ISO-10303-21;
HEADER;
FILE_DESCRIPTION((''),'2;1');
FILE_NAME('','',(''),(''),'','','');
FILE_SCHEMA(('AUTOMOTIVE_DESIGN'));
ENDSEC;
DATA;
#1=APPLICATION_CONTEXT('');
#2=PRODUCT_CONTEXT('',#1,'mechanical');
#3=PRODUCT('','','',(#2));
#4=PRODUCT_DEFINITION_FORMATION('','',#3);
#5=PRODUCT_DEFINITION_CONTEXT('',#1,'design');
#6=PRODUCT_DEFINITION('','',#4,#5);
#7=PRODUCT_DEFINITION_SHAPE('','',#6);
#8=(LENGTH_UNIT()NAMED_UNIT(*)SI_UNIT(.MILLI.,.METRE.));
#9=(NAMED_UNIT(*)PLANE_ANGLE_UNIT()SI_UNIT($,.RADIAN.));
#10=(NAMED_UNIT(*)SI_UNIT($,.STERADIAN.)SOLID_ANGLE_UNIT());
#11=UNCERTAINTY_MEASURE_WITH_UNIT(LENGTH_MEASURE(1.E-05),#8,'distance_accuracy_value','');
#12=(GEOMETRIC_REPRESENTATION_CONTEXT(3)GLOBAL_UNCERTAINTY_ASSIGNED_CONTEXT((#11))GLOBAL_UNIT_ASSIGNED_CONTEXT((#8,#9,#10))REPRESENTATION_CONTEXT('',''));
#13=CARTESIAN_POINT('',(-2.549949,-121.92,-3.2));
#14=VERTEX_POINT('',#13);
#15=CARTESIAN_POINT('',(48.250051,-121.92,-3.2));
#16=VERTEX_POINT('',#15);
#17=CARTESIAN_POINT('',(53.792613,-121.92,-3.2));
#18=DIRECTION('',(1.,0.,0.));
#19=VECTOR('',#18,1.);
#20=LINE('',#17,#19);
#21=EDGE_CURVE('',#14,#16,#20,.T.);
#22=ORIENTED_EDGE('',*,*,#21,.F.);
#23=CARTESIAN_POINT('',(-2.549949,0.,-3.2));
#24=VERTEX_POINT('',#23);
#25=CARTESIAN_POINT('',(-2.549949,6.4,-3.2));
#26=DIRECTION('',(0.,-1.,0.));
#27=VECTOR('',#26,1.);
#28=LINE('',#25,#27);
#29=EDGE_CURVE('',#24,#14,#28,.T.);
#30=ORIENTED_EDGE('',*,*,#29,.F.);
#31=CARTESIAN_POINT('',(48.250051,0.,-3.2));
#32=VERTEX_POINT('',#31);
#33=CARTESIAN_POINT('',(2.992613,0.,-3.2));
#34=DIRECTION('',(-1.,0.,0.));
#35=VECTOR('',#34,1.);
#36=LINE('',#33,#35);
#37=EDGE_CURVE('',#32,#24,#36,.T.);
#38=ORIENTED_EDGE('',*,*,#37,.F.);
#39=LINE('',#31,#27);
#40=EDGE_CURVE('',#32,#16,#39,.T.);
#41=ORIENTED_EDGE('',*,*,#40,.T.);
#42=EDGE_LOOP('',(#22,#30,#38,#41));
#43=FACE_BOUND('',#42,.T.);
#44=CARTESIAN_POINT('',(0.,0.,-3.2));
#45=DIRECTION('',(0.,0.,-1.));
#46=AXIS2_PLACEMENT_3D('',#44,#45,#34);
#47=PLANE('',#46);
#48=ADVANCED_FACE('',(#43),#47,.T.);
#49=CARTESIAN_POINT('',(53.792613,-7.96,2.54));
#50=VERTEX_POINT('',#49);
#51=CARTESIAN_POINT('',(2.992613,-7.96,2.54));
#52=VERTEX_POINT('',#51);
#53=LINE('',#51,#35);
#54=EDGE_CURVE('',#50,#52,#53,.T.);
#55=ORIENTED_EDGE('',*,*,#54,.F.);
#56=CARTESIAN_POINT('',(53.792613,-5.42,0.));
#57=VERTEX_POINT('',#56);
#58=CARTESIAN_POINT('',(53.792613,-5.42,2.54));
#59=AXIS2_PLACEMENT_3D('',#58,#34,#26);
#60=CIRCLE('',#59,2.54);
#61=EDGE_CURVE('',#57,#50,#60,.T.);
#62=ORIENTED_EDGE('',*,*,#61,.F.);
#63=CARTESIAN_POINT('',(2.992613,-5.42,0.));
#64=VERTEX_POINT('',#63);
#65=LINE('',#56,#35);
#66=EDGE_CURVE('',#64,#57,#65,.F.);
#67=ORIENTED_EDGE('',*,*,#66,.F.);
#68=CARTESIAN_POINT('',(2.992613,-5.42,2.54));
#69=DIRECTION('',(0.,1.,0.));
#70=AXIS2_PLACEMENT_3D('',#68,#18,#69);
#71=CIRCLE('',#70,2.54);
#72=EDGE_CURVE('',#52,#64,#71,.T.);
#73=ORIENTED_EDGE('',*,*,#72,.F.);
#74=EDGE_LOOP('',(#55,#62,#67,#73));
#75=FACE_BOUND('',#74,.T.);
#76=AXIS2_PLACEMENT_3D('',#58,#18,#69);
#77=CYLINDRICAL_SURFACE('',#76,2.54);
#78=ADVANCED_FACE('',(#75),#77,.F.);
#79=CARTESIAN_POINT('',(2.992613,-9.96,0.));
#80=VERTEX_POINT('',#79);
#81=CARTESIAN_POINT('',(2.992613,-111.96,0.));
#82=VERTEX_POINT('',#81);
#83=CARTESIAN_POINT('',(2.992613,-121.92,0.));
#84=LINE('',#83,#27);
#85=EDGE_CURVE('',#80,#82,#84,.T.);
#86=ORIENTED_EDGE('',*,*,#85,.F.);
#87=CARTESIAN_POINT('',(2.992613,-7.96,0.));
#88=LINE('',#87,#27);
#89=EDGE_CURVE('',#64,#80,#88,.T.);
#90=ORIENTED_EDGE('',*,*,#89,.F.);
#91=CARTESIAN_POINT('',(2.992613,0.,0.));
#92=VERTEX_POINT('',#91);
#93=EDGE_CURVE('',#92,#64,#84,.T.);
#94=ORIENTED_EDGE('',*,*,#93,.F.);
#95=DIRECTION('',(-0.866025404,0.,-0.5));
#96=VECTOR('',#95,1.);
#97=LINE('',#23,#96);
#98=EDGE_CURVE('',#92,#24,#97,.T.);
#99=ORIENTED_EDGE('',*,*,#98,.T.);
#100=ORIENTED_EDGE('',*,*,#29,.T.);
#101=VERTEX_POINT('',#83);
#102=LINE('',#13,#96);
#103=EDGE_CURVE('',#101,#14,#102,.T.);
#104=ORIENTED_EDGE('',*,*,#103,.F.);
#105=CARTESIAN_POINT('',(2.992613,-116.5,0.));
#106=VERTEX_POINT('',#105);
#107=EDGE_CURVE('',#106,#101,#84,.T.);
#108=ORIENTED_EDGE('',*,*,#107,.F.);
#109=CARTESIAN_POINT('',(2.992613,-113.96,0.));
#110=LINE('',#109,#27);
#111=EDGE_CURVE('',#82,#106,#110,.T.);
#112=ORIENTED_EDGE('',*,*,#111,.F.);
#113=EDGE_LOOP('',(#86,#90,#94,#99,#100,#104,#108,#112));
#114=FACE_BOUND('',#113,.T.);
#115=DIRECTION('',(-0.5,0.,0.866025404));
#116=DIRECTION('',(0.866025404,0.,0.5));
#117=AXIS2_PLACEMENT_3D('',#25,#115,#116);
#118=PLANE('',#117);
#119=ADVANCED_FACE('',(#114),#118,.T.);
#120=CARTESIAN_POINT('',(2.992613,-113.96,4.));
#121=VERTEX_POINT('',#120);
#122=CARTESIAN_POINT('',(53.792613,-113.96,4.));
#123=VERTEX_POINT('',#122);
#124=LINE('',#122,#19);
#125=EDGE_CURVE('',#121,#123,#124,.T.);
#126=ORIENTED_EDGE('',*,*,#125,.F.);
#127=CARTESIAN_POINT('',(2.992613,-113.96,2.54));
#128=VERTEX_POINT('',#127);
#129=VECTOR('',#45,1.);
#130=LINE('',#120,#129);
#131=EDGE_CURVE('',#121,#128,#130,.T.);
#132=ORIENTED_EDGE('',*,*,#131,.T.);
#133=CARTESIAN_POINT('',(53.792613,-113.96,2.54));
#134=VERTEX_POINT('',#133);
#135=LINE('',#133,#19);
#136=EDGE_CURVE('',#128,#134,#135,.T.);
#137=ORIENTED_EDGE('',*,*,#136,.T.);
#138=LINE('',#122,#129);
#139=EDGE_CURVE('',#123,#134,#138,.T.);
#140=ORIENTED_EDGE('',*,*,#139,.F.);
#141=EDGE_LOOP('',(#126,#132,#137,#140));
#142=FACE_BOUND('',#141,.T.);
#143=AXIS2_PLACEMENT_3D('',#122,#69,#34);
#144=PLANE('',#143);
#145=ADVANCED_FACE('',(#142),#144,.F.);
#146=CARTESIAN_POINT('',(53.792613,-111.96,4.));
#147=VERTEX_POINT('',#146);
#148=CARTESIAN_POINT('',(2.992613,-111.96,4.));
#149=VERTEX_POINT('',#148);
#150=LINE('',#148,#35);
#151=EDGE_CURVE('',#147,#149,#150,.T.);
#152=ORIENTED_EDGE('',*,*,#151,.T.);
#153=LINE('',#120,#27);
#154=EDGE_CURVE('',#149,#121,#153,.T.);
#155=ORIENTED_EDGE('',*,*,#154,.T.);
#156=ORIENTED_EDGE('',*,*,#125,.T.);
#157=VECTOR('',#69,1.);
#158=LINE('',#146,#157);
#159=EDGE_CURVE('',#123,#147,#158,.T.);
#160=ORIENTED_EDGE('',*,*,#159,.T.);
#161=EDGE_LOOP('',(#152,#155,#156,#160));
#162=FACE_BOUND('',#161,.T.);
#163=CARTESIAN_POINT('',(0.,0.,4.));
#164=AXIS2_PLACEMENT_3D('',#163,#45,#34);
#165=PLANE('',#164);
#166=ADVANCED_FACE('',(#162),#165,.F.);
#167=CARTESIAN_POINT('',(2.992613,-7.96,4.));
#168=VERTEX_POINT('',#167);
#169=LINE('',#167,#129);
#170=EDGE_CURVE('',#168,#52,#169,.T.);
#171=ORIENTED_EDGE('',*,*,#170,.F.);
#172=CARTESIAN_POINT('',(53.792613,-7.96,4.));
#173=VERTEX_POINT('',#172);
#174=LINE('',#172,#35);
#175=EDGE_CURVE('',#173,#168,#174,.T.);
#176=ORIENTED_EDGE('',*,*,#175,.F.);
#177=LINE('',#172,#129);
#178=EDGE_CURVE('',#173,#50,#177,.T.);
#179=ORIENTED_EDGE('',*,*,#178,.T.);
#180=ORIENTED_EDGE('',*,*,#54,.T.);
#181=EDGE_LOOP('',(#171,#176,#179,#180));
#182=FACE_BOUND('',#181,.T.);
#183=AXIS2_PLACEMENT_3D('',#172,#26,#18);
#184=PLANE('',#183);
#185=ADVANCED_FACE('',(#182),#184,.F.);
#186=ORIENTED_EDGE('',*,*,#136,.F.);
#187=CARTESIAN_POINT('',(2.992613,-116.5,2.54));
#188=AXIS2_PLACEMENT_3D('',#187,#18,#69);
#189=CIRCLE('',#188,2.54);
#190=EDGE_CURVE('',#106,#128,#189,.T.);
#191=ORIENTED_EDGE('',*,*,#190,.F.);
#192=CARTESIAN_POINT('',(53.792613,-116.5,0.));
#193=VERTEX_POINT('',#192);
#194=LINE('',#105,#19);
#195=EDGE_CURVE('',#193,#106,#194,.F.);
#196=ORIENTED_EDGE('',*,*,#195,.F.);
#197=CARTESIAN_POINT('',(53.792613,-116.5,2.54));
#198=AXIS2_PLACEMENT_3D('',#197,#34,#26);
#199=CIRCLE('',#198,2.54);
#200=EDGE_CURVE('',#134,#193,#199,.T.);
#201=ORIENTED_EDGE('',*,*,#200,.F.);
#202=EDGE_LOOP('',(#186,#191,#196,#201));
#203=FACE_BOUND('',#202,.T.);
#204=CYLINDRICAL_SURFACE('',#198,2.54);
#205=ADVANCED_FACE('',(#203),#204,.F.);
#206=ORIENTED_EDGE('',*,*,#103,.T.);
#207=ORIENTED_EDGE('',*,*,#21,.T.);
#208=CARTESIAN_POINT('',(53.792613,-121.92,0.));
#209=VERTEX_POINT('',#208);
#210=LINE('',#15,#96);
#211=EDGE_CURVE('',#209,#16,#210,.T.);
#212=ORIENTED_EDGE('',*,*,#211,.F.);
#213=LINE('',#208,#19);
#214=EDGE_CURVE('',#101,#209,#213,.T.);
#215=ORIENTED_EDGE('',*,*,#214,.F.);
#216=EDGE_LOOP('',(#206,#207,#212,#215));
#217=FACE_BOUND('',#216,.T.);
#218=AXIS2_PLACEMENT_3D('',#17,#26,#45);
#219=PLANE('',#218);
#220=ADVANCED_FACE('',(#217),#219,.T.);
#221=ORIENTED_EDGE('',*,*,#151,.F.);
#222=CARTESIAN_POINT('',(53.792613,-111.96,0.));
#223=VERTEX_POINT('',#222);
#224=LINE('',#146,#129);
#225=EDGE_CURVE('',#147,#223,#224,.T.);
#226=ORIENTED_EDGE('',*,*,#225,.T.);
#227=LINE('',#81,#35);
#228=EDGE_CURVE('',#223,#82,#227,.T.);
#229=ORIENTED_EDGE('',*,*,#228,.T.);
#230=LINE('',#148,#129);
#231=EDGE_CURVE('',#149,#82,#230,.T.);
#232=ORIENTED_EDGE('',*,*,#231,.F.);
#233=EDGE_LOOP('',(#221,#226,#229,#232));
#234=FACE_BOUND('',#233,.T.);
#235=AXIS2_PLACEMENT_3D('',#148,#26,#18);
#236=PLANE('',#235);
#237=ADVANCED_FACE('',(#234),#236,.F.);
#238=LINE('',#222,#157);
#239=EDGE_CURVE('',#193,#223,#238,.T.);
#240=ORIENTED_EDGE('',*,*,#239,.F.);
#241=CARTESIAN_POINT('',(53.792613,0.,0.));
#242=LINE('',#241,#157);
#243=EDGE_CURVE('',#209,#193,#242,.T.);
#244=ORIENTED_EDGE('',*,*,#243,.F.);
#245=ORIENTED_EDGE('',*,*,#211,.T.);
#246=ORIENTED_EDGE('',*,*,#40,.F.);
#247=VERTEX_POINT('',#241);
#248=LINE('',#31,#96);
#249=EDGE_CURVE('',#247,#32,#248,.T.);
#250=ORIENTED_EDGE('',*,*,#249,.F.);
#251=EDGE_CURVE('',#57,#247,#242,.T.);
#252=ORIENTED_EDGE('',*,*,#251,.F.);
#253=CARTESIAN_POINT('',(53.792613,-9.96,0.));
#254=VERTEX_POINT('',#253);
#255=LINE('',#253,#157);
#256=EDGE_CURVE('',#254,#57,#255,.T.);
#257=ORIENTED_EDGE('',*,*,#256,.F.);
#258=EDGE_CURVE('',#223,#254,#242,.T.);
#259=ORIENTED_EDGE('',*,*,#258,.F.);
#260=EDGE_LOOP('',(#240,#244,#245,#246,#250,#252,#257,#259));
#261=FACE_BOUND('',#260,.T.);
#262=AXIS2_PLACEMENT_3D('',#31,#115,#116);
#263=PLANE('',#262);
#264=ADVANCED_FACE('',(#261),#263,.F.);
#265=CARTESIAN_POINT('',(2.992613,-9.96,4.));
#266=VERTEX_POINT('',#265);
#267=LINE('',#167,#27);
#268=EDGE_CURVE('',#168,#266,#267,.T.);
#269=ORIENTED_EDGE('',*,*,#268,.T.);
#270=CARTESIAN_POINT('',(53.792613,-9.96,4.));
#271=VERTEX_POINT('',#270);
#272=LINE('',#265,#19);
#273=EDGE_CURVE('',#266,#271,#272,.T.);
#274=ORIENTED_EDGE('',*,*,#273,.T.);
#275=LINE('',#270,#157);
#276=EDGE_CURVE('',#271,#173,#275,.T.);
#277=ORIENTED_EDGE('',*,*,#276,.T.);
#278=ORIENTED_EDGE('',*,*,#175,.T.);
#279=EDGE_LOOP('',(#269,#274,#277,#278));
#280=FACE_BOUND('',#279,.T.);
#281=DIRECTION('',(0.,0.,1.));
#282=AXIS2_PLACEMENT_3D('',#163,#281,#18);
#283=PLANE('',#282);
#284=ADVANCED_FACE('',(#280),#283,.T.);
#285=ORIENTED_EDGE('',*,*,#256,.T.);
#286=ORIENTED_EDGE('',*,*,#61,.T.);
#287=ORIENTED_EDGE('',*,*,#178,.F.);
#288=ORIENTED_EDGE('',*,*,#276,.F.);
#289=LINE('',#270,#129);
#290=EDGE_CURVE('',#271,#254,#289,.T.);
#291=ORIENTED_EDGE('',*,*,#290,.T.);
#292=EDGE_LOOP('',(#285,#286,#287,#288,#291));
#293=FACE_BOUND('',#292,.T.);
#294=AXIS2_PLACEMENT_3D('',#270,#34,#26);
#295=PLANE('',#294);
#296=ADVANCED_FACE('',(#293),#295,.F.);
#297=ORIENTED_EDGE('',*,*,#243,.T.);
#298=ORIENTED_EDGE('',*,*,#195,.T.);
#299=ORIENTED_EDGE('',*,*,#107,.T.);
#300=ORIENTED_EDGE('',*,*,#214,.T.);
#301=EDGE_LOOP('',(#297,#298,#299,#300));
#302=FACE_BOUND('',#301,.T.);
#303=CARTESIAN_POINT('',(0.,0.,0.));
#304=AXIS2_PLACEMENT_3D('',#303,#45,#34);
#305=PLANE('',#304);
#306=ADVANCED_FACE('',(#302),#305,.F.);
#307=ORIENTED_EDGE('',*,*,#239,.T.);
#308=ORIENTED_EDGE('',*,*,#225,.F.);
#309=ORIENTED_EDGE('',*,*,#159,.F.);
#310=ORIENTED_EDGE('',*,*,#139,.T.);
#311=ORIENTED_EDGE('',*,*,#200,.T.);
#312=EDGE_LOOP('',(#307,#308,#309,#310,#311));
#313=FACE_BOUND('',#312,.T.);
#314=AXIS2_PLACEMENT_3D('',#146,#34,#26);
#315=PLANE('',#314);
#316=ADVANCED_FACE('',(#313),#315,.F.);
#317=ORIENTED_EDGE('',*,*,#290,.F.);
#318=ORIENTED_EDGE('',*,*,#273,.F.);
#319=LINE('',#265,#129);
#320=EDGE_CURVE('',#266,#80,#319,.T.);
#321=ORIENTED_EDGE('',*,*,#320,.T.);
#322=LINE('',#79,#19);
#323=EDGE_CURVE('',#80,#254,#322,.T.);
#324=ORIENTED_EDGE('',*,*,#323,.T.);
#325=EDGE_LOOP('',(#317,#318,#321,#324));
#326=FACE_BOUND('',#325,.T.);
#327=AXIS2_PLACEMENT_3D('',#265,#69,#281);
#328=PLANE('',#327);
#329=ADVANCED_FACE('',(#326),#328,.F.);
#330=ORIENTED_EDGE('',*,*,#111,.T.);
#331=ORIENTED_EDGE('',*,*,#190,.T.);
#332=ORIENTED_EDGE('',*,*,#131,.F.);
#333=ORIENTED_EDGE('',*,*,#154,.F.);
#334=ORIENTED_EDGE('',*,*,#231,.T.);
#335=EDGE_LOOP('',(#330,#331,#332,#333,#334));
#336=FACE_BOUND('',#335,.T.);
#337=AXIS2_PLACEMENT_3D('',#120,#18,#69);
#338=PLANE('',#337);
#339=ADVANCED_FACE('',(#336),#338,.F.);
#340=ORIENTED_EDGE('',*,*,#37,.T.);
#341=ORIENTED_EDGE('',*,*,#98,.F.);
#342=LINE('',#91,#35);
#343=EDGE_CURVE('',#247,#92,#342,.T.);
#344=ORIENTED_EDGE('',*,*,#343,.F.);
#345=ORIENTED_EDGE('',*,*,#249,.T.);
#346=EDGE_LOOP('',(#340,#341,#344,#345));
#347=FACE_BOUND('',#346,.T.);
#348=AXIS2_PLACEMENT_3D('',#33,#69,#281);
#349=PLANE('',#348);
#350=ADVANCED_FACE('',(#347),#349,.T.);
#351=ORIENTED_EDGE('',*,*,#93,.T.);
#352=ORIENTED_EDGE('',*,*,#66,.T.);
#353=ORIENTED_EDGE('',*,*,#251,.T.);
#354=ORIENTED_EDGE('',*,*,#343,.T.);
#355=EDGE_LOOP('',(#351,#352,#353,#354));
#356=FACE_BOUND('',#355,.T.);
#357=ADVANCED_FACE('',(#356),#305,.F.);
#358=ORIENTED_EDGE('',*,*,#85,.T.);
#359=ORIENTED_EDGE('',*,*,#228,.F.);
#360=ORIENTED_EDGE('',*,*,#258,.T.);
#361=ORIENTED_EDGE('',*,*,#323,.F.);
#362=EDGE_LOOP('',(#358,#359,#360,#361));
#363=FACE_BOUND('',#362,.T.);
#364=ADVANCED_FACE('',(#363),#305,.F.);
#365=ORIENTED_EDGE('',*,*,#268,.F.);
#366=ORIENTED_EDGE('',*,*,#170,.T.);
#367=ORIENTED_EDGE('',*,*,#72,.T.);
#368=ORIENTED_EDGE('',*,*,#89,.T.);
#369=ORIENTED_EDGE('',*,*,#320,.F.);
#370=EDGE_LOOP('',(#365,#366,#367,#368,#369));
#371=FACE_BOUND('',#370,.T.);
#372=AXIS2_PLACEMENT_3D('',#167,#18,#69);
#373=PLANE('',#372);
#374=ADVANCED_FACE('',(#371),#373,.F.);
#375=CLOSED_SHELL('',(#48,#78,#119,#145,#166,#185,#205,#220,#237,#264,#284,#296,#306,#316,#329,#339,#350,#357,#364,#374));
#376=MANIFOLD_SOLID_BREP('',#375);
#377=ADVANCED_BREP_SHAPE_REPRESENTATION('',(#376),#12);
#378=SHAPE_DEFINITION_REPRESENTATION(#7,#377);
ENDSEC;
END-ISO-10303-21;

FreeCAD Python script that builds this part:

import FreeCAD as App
import Part
import Sketcher

V = App.Vector
Q = App.Units.Quantity


def edges_at(feature, points):
    """Names of the edges that pass closest to the given points."""
    edges = feature.Shape.Edges
    near = lambda p: min(range(len(edges)), key=lambda i: edges[i].distToShape(Part.Vertex(*p))[0])
    return sorted({f"Edge{near(p) + 1}" for p in points})


def add_polygon(sketch, points):
    """Adds a closed chain of lines whose ends are joined by coincident constraints."""
    first, n = sketch.GeometryCount, len(points)
    for a, b in zip(points, points[1:] + points[:1]):
        sketch.addGeometry(Part.LineSegment(App.Vector(*a, 0), App.Vector(*b, 0)), False)
    for i in range(n):
        sketch.addConstraint(Sketcher.Constraint("Coincident", first + i, 2, first + (i + 1) % n, 1))

doc = App.newDocument("Part")
body = doc.addObject("PartDesign::Body", "Body")

sketch1 = doc.addObject("Sketcher::SketchObject", "Sketch")
body.addObject(sketch1)
sketch1.AttachmentSupport = (doc.XY_Plane, [""])
sketch1.MapMode = "FlatFace"
add_polygon(sketch1, [(3, 0), (3, -122), (54, -122), (54, 0)])
sketch1.addConstraint([
    Sketcher.Constraint("Vertical", 0),
    Sketcher.Constraint("Horizontal", 1),
    Sketcher.Constraint("Vertical", 2),
    Sketcher.Constraint("Horizontal", 3),
    Sketcher.Constraint("PointOnObject", 2, 2, -1),
    Sketcher.Constraint("DistanceX", 1, 1, 1, 2, 50.8),
    Sketcher.Constraint("DistanceY", 0, 2, 0, 1, 121.92),
    Sketcher.Constraint("DistanceX", -1, 1, 0, 2, 2.992613),
])
pad1 = doc.addObject("PartDesign::Pad", "Pad")
body.addObject(pad1)
pad1.Profile = sketch1
pad1.Length = 3.2
pad1.Reversed = True

sketch2 = doc.addObject("Sketcher::SketchObject", "Sketch001")
body.addObject(sketch2)
sketch2.AttachmentSupport = (doc.XZ_Plane, [""])
sketch2.MapMode = "FlatFace"
sketch2.AttachmentOffset = App.Placement(V(0, 0, 121.92), App.Rotation())
add_polygon(sketch2, [(53.8, -3.2), (53.8, 0), (48.3, -3.2)])
sketch2.addConstraint([
    Sketcher.Constraint("Vertical", 0),
    Sketcher.Constraint("Horizontal", 2),
    Sketcher.Constraint("PointOnObject", 0, 2, -1),
    Sketcher.Constraint("Angle", 1, Q("-150 deg")),
    Sketcher.Constraint("DistanceY", 0, 1, 0, 2, 3.2),
    Sketcher.Constraint("DistanceX", -1, 1, 1, 2, 48.250051),
])
pocket1 = doc.addObject("PartDesign::Pocket", "Pocket")
body.addObject(pocket1)
pocket1.Profile = sketch2
pocket1.Type = "ThroughAll"

sketch3 = doc.addObject("Sketcher::SketchObject", "Sketch002")
body.addObject(sketch3)
sketch3.AttachmentSupport = (doc.XZ_Plane, [""])
sketch3.MapMode = "FlatFace"
sketch3.AttachmentOffset = App.Placement(V(0, 0, 121.92), App.Rotation())
add_polygon(sketch3, [(3, -3.2), (3, 0), (-2.5, -3.2)])
sketch3.addConstraint([
    Sketcher.Constraint("Vertical", 0),
    Sketcher.Constraint("Horizontal", 2),
    Sketcher.Constraint("PointOnObject", 0, 2, -1),
    Sketcher.Constraint("Angle", 1, Q("-150 deg")),
    Sketcher.Constraint("DistanceY", 0, 1, 0, 2, 3.2),
    Sketcher.Constraint("DistanceX", 1, 2, -1, 1, 2.549949),
])
pad2 = doc.addObject("PartDesign::Pad", "Pad001")
body.addObject(pad2)
pad2.Profile = sketch3
pad2.Length = 121.92
pad2.Reversed = True

sketch4 = doc.addObject("Sketcher::SketchObject", "Sketch003")
body.addObject(sketch4)
sketch4.AttachmentSupport = (doc.XY_Plane, [""])
sketch4.MapMode = "FlatFace"
add_polygon(sketch4, [(3, -8), (3, -10), (53.8, -10), (53.8, -8)])
add_polygon(sketch4, [(3, -112), (3, -114), (53.8, -114), (53.8, -112)])
sketch4.addConstraint([
    Sketcher.Constraint("Vertical", 0),
    Sketcher.Constraint("Horizontal", 1),
    Sketcher.Constraint("Vertical", 2),
    Sketcher.Constraint("Horizontal", 3),
    Sketcher.Constraint("Vertical", 4),
    Sketcher.Constraint("Horizontal", 5),
    Sketcher.Constraint("Vertical", 6),
    Sketcher.Constraint("Horizontal", 7),
    Sketcher.Constraint("Vertical", 3, 2, 4, 2),
    Sketcher.Constraint("Vertical", 2, 2, 5, 2),
    Sketcher.Constraint("Equal", 2, 4),
    Sketcher.Constraint("DistanceY", 0, 2, 0, 1, 2.0),
    Sketcher.Constraint("DistanceX", 1, 1, 1, 2, 50.8),
    Sketcher.Constraint("DistanceY", 4, 2, 0, 2, 104.0),
    Sketcher.Constraint("DistanceY", 0, 2, -1, 1, 9.96),
    Sketcher.Constraint("DistanceX", -1, 1, 0, 2, 2.992613),
])
pad3 = doc.addObject("PartDesign::Pad", "Pad002")
body.addObject(pad3)
pad3.Profile = sketch4
pad3.Length = 4
doc.recompute()

fillet = doc.addObject("PartDesign::Fillet", "Fillet")
body.addObject(fillet)
fillet.Base = (pad3, edges_at(pad3, [(28.393, -7.96, 0), (28.393, -113.96, 0)]))
fillet.Radius = 2.54

doc.recompute()
